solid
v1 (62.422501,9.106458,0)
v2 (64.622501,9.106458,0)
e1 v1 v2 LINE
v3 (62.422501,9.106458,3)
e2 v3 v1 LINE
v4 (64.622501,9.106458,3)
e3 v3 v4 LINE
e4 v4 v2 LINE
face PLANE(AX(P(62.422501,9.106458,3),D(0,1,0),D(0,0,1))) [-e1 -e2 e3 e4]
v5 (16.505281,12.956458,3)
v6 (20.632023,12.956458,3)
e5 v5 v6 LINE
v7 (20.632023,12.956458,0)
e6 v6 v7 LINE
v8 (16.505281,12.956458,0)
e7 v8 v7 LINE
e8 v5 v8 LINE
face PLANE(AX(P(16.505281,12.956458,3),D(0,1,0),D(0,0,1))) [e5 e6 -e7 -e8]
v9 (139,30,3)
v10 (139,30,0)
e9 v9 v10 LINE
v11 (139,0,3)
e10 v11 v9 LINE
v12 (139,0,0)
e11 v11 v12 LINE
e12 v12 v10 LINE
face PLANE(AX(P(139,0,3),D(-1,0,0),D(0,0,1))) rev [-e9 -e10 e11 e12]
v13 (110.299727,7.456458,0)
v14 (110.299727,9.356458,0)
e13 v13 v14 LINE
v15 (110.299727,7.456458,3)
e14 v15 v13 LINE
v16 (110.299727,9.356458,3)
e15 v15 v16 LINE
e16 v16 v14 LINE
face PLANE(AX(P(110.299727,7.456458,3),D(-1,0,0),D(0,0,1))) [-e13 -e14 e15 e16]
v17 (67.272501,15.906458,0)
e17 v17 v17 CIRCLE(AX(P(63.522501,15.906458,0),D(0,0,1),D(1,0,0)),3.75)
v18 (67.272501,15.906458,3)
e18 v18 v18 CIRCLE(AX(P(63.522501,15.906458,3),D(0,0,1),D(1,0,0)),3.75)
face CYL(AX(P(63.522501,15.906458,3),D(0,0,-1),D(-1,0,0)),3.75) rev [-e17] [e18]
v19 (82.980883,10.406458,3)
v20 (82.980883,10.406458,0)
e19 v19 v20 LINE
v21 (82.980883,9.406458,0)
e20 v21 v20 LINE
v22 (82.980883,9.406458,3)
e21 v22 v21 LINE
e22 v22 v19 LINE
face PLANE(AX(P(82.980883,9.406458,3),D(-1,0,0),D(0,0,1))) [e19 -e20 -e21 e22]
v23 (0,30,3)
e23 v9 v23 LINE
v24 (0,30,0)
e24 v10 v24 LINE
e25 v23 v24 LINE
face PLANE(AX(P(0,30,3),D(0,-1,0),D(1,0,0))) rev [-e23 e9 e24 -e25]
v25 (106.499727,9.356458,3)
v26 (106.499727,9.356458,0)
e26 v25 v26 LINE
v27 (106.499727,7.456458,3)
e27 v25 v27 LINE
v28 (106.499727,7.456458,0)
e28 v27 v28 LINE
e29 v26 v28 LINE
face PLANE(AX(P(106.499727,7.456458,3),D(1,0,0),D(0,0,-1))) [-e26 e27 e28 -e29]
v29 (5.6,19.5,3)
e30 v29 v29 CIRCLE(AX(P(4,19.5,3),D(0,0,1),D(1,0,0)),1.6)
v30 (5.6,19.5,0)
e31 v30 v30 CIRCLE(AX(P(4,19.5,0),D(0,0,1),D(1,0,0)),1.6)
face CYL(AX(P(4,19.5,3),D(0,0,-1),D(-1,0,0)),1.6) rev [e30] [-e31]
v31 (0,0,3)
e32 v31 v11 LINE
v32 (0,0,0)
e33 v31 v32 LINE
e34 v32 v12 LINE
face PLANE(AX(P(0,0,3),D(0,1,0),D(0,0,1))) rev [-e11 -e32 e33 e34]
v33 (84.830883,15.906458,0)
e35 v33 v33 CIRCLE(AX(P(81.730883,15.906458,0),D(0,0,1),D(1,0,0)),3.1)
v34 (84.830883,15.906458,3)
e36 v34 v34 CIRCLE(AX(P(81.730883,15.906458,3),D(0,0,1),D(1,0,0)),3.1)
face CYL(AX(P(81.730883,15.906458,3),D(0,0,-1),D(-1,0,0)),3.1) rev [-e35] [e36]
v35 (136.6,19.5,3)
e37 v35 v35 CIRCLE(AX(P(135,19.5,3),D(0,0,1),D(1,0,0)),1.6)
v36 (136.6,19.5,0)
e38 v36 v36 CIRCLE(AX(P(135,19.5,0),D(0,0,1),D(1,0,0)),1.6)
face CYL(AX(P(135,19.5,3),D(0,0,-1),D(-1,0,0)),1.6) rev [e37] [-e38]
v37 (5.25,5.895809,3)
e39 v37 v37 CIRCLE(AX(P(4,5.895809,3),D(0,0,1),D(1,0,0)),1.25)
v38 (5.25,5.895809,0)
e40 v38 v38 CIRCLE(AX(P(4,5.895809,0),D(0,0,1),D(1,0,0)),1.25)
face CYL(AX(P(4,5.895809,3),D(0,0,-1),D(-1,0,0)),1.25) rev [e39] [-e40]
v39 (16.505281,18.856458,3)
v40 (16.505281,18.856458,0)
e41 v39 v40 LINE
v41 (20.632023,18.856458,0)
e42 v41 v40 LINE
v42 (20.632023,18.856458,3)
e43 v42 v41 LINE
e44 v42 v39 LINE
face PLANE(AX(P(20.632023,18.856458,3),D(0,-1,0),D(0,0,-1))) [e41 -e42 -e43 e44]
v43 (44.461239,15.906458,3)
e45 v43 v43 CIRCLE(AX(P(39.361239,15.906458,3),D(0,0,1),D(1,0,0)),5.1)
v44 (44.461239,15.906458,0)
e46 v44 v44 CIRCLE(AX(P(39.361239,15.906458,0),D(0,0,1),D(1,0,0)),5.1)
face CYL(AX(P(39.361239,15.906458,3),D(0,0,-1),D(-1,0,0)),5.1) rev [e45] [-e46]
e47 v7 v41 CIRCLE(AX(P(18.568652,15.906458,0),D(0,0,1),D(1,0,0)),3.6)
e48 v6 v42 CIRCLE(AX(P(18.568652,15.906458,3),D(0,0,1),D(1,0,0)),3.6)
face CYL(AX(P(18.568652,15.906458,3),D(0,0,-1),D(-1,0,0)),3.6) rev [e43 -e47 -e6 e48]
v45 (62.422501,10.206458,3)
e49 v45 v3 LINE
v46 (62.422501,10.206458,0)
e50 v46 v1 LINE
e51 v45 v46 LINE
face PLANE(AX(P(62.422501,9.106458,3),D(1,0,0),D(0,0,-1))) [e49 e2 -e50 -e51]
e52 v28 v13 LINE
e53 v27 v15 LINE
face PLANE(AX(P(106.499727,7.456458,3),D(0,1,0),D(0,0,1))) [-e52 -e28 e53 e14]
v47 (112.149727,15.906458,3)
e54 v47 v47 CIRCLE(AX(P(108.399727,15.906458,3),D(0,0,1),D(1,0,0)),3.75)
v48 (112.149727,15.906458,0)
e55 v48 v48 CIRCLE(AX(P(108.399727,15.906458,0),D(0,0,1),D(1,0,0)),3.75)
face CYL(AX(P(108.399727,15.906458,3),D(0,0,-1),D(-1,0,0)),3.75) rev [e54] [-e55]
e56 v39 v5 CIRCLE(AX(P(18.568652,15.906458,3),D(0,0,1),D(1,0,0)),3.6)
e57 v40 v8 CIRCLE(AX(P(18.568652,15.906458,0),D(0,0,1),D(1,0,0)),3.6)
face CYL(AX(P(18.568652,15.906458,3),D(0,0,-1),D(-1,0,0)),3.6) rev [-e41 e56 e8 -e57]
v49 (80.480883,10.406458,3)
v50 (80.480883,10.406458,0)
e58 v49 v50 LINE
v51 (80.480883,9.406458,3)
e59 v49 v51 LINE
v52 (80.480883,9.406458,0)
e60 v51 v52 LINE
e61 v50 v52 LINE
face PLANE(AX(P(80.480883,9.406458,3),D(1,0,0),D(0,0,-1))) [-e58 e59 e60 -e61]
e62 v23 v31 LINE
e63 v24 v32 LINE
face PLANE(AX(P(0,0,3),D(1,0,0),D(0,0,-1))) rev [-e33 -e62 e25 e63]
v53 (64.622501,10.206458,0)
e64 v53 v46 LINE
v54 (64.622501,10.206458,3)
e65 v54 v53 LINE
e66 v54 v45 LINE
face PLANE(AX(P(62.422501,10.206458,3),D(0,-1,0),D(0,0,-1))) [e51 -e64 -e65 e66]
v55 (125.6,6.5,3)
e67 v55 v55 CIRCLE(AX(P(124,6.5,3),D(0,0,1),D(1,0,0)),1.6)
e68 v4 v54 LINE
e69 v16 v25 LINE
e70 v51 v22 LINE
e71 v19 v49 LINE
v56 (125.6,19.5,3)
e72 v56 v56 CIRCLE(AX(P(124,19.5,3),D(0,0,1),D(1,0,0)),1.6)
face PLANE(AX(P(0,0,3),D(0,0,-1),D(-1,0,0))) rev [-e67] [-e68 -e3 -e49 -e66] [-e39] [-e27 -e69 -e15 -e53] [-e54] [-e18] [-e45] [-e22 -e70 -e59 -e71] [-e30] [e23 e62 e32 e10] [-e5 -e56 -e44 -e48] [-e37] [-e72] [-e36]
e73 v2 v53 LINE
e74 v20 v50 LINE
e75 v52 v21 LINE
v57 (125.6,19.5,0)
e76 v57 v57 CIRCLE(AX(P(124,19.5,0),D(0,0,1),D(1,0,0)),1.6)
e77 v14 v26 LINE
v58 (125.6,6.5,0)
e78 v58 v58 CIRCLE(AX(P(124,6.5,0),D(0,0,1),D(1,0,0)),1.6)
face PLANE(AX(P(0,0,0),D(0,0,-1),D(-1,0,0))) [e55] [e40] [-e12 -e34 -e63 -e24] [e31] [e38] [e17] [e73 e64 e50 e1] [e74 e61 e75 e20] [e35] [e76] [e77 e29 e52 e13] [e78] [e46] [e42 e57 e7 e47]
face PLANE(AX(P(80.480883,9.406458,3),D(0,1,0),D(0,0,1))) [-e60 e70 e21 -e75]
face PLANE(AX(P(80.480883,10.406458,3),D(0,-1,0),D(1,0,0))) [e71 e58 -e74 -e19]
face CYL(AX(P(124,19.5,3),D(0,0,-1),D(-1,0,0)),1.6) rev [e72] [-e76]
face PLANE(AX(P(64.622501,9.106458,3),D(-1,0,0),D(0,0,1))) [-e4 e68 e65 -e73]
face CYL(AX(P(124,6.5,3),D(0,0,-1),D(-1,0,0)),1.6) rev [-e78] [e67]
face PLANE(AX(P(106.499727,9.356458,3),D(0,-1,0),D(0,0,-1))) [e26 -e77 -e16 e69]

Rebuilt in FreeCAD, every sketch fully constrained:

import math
import FreeCAD as App
import Part
import Sketcher
from FreeCAD import Vector


def add_polygon(sketch, points):
    """Adds a closed chain of lines whose ends are joined by coincident constraints."""
    first, n = sketch.GeometryCount, len(points)
    for a, b in zip(points, points[1:] + points[:1]):
        sketch.addGeometry(Part.LineSegment(App.Vector(*a, 0), App.Vector(*b, 0)), False)
    for i in range(n):
        sketch.addConstraint(Sketcher.Constraint("Coincident", first + i, 2, first + (i + 1) % n, 1))

doc = App.newDocument("Part")
params = doc.addObject("Spreadsheet::Sheet", "Params")
for row, (alias, value) in enumerate([
    ("sketch1_diameter", "2.5 mm"),
    ("sketch1_diameter2", "3.2 mm"),
    ("sketch1_diameter3", "10.2 mm"),
    ("sketch1_diameter4", "7.5 mm"),
    ("sketch1_diameter5", "6.2 mm"),
    ("pad1_length", "3 mm"),
], start=1):
    params.set(f"A{row}", alias)
    params.set(f"B{row}", "=" + value)
    params.setAlias(f"B{row}", alias)

body = doc.addObject("PartDesign::Body", "Body")

# Sketch on XY plane
sketch1 = body.newObject("Sketcher::SketchObject", "Sketch")
sketch1.AttachmentSupport = (doc.getObject("XY_Plane"), [""])
sketch1.MapMode = "FlatFace"
add_polygon(sketch1, [(0, 30), (0, 0), (139, 0), (139, 30)])  # lines 0-3
sketch1.addGeometry(Part.Circle(Vector(4, 5.895809, 0), Vector(0, 0, 1), 1.25), False)  # 4
add_polygon(sketch1, [(64.622501, 9.106458), (62.422501, 9.106458), (62.422501, 10.206458), (64.622501, 10.206458)])  # lines 5-8
sketch1.addGeometry(Part.Circle(Vector(124, 6.5, 0), Vector(0, 0, 1), 1.6), False)  # 9
add_polygon(sketch1, [(110.299727, 7.456458), (106.499727, 7.456458), (106.499727, 9.356458), (110.299727, 9.356458)])  # lines 10-13
add_polygon(sketch1, [(82.980883, 9.406458), (80.480883, 9.406458), (80.480883, 10.406458), (82.980883, 10.406458)])  # lines 14-17
sketch1.addGeometry(Part.LineSegment(Vector(20.632023, 12.956458, 0), Vector(16.505281, 12.956458, 0)), False)  # 18
sketch1.addGeometry(Part.ArcOfCircle(Part.Circle(Vector(18.568652, 15.906458, 0), Vector(0, 0, 1), 3.6), math.radians(124.970781), math.radians(235.029219)), False)  # 19
sketch1.addGeometry(Part.LineSegment(Vector(16.505281, 18.856458, 0), Vector(20.632023, 18.856458, 0)), False)  # 20
sketch1.addGeometry(Part.ArcOfCircle(Part.Circle(Vector(18.568652, 15.906458, 0), Vector(0, 0, 1), 3.6), math.radians(-55.029219), math.radians(55.029219)), False)  # 21
sketch1.addGeometry(Part.Circle(Vector(39.361239, 15.906458, 0), Vector(0, 0, 1), 5.1), False)  # 22
sketch1.addGeometry(Part.Circle(Vector(63.522501, 15.906458, 0), Vector(0, 0, 1), 3.75), False)  # 23
sketch1.addGeometry(Part.Circle(Vector(4, 19.5, 0), Vector(0, 0, 1), 1.6), False)  # 24
sketch1.addGeometry(Part.Circle(Vector(81.730883, 15.906458, 0), Vector(0, 0, 1), 3.1), False)  # 25
sketch1.addGeometry(Part.Circle(Vector(108.399727, 15.906458, 0), Vector(0, 0, 1), 3.75), False)  # 26
sketch1.addGeometry(Part.Circle(Vector(124, 19.5, 0), Vector(0, 0, 1), 1.6), False)  # 27
sketch1.addGeometry(Part.Circle(Vector(135, 19.5, 0), Vector(0, 0, 1), 1.6), False)  # 28
sketch1.addConstraint(Sketcher.Constraint("Coincident", 18, 2, 19, 2))
sketch1.addConstraint(Sketcher.Constraint("Coincident", 19, 1, 20, 1))
sketch1.addConstraint(Sketcher.Constraint("Coincident", 20, 2, 21, 2))
sketch1.addConstraint(Sketcher.Constraint("Coincident", 21, 1, 18, 1))
sketch1.addConstraint(Sketcher.Constraint("Vertical", 0))
sketch1.addConstraint(Sketcher.Constraint("Horizontal", 1))
sketch1.addConstraint(Sketcher.Constraint("Vertical", 2))
sketch1.addConstraint(Sketcher.Constraint("Horizontal", 3))
sketch1.addConstraint(Sketcher.Constraint("Horizontal", 5))
sketch1.addConstraint(Sketcher.Constraint("Vertical", 6))
sketch1.addConstraint(Sketcher.Constraint("Horizontal", 7))
sketch1.addConstraint(Sketcher.Constraint("Vertical", 8))
sketch1.addConstraint(Sketcher.Constraint("Horizontal", 10))
sketch1.addConstraint(Sketcher.Constraint("Vertical", 11))
sketch1.addConstraint(Sketcher.Constraint("Horizontal", 12))
sketch1.addConstraint(Sketcher.Constraint("Vertical", 13))
sketch1.addConstraint(Sketcher.Constraint("Horizontal", 14))
sketch1.addConstraint(Sketcher.Constraint("Vertical", 15))
sketch1.addConstraint(Sketcher.Constraint("Horizontal", 16))
sketch1.addConstraint(Sketcher.Constraint("Vertical", 17))
sketch1.addConstraint(Sketcher.Constraint("Horizontal", 18))
sketch1.addConstraint(Sketcher.Constraint("Horizontal", 20))
sketch1.addConstraint(Sketcher.Constraint("Coincident", 0, 2, -1, 1))
sketch1.addConstraint(Sketcher.Constraint("Coincident", 21, 3, 19, 3))
sketch1.addConstraint(Sketcher.Constraint("Equal", 19, 21))
sketch1.addConstraint(Sketcher.Constraint("Equal", 9, 24))
sketch1.addConstraint(Sketcher.Constraint("Equal", 23, 26))
sketch1.addConstraint(Sketcher.Constraint("Equal", 24, 27))
sketch1.addConstraint(Sketcher.Constraint("Equal", 27, 28))
sketch1.addConstraint(Sketcher.Constraint("Horizontal", 21, 3, 22, 3))
sketch1.addConstraint(Sketcher.Constraint("Horizontal", 22, 3, 23, 3))
sketch1.addConstraint(Sketcher.Constraint("Horizontal", 23, 3, 25, 3))
sketch1.addConstraint(Sketcher.Constraint("Horizontal", 25, 3, 26, 3))
sketch1.addConstraint(Sketcher.Constraint("Horizontal", 24, 3, 27, 3))
sketch1.addConstraint(Sketcher.Constraint("Horizontal", 27, 3, 28, 3))
sketch1.addConstraint(Sketcher.Constraint("Vertical", 4, 3, 24, 3))
sketch1.addConstraint(Sketcher.Constraint("Vertical", 9, 3, 27, 3))
sketch1.addConstraint(Sketcher.Constraint("Vertical", 18, 2, 19, 1))
sketch1.addConstraint(Sketcher.Constraint("Diameter", 4, 2.5))
sketch1.addConstraint(Sketcher.Constraint("Diameter", 9, 3.2))
sketch1.addConstraint(Sketcher.Constraint("Diameter", 22, 10.2))
sketch1.addConstraint(Sketcher.Constraint("Diameter", 23, 7.5))
sketch1.addConstraint(Sketcher.Constraint("Diameter", 25, 6.2))
sketch1.addConstraint(Sketcher.Constraint("Radius", 19, 3.6))
sketch1.addConstraint(Sketcher.Constraint("DistanceX", 1, 1, 1, 2, 139.0))
sketch1.addConstraint(Sketcher.Constraint("DistanceY", 0, 2, 0, 1, 30.0))
sketch1.addConstraint(Sketcher.Constraint("DistanceY", 15, 1, 15, 2, 1.0))
sketch1.addConstraint(Sketcher.Constraint("DistanceX", 5, 2, 5, 1, 2.2))
sketch1.addConstraint(Sketcher.Constraint("DistanceX", 10, 2, 10, 1, 3.8))
sketch1.addConstraint(Sketcher.Constraint("DistanceX", 14, 2, 14, 1, 2.5))
sketch1.addConstraint(Sketcher.Constraint("DistanceY", 6, 1, 6, 2, 1.1))
sketch1.addConstraint(Sketcher.Constraint("DistanceY", 11, 1, 11, 2, 1.9))
sketch1.addConstraint(Sketcher.Constraint("DistanceX", -1, 1, 4, 3, 4.0))
sketch1.addConstraint(Sketcher.Constraint("DistanceX", -1, 1, 9, 3, 124.0))
sketch1.addConstraint(Sketcher.Constraint("DistanceX", -1, 1, 28, 3, 135.0))
sketch1.addConstraint(Sketcher.Constraint("DistanceY", 9, 3, 27, 3, 13.0))
sketch1.addConstraint(Sketcher.Constraint("DistanceY", -1, 1, 9, 3, 6.5))
sketch1.addConstraint(Sketcher.Constraint("DistanceX", 5, 2, 23, 3, 1.1))
sketch1.addConstraint(Sketcher.Constraint("DistanceY", 5, 2, 23, 3, 6.8))
sketch1.addConstraint(Sketcher.Constraint("DistanceX", 10, 2, 26, 3, 1.9))
sketch1.addConstraint(Sketcher.Constraint("DistanceY", 14, 2, 25, 3, 6.5))
sketch1.addConstraint(Sketcher.Constraint("DistanceY", 18, 2, 19, 1, 5.9))
sketch1.addConstraint(Sketcher.Constraint("DistanceY", 10, 2, 26, 3, 8.45))
sketch1.addConstraint(Sketcher.Constraint("DistanceX", 14, 2, 25, 3, 1.25))
sketch1.addConstraint(Sketcher.Constraint("DistanceX", -1, 1, 23, 3, 63.522501))
sketch1.addConstraint(Sketcher.Constraint("DistanceY", -1, 1, 4, 3, 5.895809))
sketch1.addConstraint(Sketcher.Constraint("DistanceX", -1, 1, 19, 3, 18.568652))
sketch1.addConstraint(Sketcher.Constraint("DistanceY", -1, 1, 19, 3, 15.906458))
sketch1.addConstraint(Sketcher.Constraint("DistanceX", -1, 1, 22, 3, 39.361239))
sketch1.addConstraint(Sketcher.Constraint("DistanceX", 19, 3, 25, 3, 63.162232))
sketch1.addConstraint(Sketcher.Constraint("DistanceX", -1, 1, 26, 3, 108.399727))
sketch1.setExpression("Constraints[54]", "Params.sketch1_diameter")
sketch1.setExpression("Constraints[55]", "Params.sketch1_diameter2")
sketch1.setExpression("Constraints[56]", "Params.sketch1_diameter3")
sketch1.setExpression("Constraints[57]", "Params.sketch1_diameter4")
sketch1.setExpression("Constraints[58]", "Params.sketch1_diameter5")
pad1 = body.newObject("PartDesign::Pad", "Pad")
pad1.Profile = sketch1
pad1.setExpression("Length", "Params.pad1_length")

doc.recompute()
